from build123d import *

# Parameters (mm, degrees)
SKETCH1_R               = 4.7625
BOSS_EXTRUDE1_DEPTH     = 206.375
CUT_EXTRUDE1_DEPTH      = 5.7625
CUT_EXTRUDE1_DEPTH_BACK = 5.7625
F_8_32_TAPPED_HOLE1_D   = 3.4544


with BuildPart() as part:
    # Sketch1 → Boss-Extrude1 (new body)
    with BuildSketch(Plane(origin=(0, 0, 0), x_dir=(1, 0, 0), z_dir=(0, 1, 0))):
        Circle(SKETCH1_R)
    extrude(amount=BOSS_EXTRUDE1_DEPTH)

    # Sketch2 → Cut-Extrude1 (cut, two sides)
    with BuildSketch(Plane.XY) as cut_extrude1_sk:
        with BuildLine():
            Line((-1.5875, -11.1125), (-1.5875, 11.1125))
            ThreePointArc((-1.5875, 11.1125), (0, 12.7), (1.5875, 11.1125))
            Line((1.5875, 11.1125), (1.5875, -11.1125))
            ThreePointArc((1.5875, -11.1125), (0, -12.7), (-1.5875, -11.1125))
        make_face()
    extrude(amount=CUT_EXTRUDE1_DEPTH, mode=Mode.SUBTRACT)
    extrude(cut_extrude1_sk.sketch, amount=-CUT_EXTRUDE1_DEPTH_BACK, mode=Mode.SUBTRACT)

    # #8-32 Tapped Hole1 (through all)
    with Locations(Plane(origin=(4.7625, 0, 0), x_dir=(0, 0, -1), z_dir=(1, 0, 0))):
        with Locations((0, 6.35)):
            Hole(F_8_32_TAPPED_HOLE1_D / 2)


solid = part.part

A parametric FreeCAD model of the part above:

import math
import FreeCAD as App
import Part
import Sketcher
from FreeCAD import Vector
Q = App.Units.Quantity

doc = App.newDocument("Part")
body = doc.addObject("PartDesign::Body", "Body")

sketch1 = body.newObject("Sketcher::SketchObject", "Sketch")
sketch1.AttachmentSupport = (doc.getObject("XZ_Plane"), [""])
sketch1.MapMode = "FlatFace"
sketch1.addGeometry(Part.Circle(Vector(0, 0, 0), Vector(0, 0, 1), 4.8), False)
sketch1.addConstraint([
    Sketcher.Constraint("Coincident", 0, 3, -1, 1),
    Sketcher.Constraint("Diameter", 0, Q("0.375 in")),
])
pad1 = body.newObject("PartDesign::Pad", "Pad")
pad1.Profile = sketch1
pad1.Length = Q("8.125 in")
pad1.Reversed = True

sketch2 = body.newObject("Sketcher::SketchObject", "Sketch001")
sketch2.AttachmentSupport = (doc.getObject("XY_Plane"), [""])
sketch2.MapMode = "FlatFace"
sketch2.addGeometry([
    Part.LineSegment(Vector(-1.6, 11.1, 0), Vector(-1.6, -11.1, 0)),
    Part.ArcOfCircle(Part.Circle(Vector(0, -11.1, 0), Vector(0, 0, 1), 1.6), math.radians(180), math.radians(360)),
    Part.LineSegment(Vector(1.6, -11.1, 0), Vector(1.6, 11.1, 0)),
    Part.ArcOfCircle(Part.Circle(Vector(0, 11.1, 0), Vector(0, 0, 1), 1.6), math.radians(0), math.radians(180)),
], False)
sketch2.addConstraint([
    Sketcher.Constraint("Tangent", 0, 2, 1, 1),
    Sketcher.Constraint("Tangent", 1, 2, 2, 1),
    Sketcher.Constraint("Tangent", 2, 2, 3, 1),
    Sketcher.Constraint("Tangent", 3, 2, 0, 1),
    Sketcher.Constraint("Vertical", 0),
    Sketcher.Constraint("Vertical", 2),
    Sketcher.Constraint("Symmetric", 1, 3, 3, 3, -1, 1),
    Sketcher.Constraint("Radius", 1, Q("0.0625 in")),
    Sketcher.Constraint("DistanceY", 0, 2, 0, 1, Q("0.875 in")),
])
pocket1 = body.newObject("PartDesign::Pocket", "Pocket")
pocket1.Profile = sketch2
pocket1.Type = "ThroughAll"
pocket1.Midplane = True

sketch3 = body.newObject("Sketcher::SketchObject", "Sketch002")
sketch3.AttachmentSupport = (doc.getObject("YZ_Plane"), [""])
sketch3.MapMode = "FlatFace"
sketch3.AttachmentOffset = App.Placement(Vector(0, 0, 0.1875 * 25.4), App.Rotation())
sketch3.addGeometry(Part.Circle(Vector(6.3, 0, 0), Vector(0, 0, 1), 1.7), False)
sketch3.addConstraint([
    Sketcher.Constraint("PointOnObject", 0, 3, -1),
    Sketcher.Constraint("Diameter", 0, Q("0.136 in")),
    Sketcher.Constraint("DistanceX", -1, 1, 0, 3, Q("0.25 in")),
])
doc.recompute()
hole = body.newObject("PartDesign::Hole", "Hole")
hole.Profile = sketch3
hole.ThreadType = "None"
hole.Diameter = Q("0.136 in")
hole.DepthType = "ThroughAll"

doc.recompute()
